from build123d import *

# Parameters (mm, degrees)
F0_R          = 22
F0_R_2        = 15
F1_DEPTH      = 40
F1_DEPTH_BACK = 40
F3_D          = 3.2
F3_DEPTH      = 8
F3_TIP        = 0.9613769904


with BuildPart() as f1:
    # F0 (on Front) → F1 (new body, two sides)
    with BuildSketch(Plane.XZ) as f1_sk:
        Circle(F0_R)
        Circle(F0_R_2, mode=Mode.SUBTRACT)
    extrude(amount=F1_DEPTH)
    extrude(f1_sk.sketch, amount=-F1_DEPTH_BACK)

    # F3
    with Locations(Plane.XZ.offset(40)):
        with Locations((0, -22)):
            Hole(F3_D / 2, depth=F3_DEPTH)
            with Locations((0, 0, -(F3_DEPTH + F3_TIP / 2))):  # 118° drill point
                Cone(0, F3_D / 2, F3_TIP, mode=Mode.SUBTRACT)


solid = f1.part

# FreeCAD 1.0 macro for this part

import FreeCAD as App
import Part
import Sketcher

V = App.Vector
Q = App.Units.Quantity

doc = App.newDocument("Part")
body = doc.addObject("PartDesign::Body", "Body")

sketch1 = body.newObject("Sketcher::SketchObject", "Sketch")
sketch1.AttachmentSupport = (doc.getObject("XZ_Plane"), [""])
sketch1.MapMode = "FlatFace"
sketch1.addGeometry([
    Part.Circle(V(0, 0, 0), V(0, 0, 1), 22),
    Part.Circle(V(0, 0, 0), V(0, 0, 1), 15),
], False)
sketch1.addConstraint([
    Sketcher.Constraint("Coincident", 0, 3, -1, 1),
    Sketcher.Constraint("Coincident", 1, 3, -1, 1),
    Sketcher.Constraint("Diameter", 0, Q("44 mm")),
    Sketcher.Constraint("Diameter", 1, Q("30 mm")),
])
pad1 = body.newObject("PartDesign::Pad", "Pad")
pad1.Profile = sketch1
pad1.Type = "TwoLengths"
pad1.Length = 40
pad1.Length2 = 40

sketch2 = body.newObject("Sketcher::SketchObject", "Sketch001")
sketch2.AttachmentSupport = (doc.getObject("XZ_Plane"), [""])
sketch2.MapMode = "FlatFace"
sketch2.AttachmentOffset = App.Placement(V(0, 0, 40), App.Rotation())
sketch2.addGeometry(Part.Circle(V(0, -22, 0), V(0, 0, 1), 1.6), False)
sketch2.addConstraint([
    Sketcher.Constraint("PointOnObject", 0, 3, -2),
    Sketcher.Constraint("Diameter", 0, Q("3.2 mm")),
    Sketcher.Constraint("DistanceY", 0, 3, -1, 1, Q("22 mm")),
])
doc.recompute()
hole = body.newObject("PartDesign::Hole", "Hole")
hole.Profile = sketch2
hole.ThreadType = "None"
hole.Diameter = 3.2
hole.DepthType = "Dimension"
hole.Depth = 8
hole.DrillPoint = "Angled"
hole.DrillPointAngle = 118

doc.recompute()
